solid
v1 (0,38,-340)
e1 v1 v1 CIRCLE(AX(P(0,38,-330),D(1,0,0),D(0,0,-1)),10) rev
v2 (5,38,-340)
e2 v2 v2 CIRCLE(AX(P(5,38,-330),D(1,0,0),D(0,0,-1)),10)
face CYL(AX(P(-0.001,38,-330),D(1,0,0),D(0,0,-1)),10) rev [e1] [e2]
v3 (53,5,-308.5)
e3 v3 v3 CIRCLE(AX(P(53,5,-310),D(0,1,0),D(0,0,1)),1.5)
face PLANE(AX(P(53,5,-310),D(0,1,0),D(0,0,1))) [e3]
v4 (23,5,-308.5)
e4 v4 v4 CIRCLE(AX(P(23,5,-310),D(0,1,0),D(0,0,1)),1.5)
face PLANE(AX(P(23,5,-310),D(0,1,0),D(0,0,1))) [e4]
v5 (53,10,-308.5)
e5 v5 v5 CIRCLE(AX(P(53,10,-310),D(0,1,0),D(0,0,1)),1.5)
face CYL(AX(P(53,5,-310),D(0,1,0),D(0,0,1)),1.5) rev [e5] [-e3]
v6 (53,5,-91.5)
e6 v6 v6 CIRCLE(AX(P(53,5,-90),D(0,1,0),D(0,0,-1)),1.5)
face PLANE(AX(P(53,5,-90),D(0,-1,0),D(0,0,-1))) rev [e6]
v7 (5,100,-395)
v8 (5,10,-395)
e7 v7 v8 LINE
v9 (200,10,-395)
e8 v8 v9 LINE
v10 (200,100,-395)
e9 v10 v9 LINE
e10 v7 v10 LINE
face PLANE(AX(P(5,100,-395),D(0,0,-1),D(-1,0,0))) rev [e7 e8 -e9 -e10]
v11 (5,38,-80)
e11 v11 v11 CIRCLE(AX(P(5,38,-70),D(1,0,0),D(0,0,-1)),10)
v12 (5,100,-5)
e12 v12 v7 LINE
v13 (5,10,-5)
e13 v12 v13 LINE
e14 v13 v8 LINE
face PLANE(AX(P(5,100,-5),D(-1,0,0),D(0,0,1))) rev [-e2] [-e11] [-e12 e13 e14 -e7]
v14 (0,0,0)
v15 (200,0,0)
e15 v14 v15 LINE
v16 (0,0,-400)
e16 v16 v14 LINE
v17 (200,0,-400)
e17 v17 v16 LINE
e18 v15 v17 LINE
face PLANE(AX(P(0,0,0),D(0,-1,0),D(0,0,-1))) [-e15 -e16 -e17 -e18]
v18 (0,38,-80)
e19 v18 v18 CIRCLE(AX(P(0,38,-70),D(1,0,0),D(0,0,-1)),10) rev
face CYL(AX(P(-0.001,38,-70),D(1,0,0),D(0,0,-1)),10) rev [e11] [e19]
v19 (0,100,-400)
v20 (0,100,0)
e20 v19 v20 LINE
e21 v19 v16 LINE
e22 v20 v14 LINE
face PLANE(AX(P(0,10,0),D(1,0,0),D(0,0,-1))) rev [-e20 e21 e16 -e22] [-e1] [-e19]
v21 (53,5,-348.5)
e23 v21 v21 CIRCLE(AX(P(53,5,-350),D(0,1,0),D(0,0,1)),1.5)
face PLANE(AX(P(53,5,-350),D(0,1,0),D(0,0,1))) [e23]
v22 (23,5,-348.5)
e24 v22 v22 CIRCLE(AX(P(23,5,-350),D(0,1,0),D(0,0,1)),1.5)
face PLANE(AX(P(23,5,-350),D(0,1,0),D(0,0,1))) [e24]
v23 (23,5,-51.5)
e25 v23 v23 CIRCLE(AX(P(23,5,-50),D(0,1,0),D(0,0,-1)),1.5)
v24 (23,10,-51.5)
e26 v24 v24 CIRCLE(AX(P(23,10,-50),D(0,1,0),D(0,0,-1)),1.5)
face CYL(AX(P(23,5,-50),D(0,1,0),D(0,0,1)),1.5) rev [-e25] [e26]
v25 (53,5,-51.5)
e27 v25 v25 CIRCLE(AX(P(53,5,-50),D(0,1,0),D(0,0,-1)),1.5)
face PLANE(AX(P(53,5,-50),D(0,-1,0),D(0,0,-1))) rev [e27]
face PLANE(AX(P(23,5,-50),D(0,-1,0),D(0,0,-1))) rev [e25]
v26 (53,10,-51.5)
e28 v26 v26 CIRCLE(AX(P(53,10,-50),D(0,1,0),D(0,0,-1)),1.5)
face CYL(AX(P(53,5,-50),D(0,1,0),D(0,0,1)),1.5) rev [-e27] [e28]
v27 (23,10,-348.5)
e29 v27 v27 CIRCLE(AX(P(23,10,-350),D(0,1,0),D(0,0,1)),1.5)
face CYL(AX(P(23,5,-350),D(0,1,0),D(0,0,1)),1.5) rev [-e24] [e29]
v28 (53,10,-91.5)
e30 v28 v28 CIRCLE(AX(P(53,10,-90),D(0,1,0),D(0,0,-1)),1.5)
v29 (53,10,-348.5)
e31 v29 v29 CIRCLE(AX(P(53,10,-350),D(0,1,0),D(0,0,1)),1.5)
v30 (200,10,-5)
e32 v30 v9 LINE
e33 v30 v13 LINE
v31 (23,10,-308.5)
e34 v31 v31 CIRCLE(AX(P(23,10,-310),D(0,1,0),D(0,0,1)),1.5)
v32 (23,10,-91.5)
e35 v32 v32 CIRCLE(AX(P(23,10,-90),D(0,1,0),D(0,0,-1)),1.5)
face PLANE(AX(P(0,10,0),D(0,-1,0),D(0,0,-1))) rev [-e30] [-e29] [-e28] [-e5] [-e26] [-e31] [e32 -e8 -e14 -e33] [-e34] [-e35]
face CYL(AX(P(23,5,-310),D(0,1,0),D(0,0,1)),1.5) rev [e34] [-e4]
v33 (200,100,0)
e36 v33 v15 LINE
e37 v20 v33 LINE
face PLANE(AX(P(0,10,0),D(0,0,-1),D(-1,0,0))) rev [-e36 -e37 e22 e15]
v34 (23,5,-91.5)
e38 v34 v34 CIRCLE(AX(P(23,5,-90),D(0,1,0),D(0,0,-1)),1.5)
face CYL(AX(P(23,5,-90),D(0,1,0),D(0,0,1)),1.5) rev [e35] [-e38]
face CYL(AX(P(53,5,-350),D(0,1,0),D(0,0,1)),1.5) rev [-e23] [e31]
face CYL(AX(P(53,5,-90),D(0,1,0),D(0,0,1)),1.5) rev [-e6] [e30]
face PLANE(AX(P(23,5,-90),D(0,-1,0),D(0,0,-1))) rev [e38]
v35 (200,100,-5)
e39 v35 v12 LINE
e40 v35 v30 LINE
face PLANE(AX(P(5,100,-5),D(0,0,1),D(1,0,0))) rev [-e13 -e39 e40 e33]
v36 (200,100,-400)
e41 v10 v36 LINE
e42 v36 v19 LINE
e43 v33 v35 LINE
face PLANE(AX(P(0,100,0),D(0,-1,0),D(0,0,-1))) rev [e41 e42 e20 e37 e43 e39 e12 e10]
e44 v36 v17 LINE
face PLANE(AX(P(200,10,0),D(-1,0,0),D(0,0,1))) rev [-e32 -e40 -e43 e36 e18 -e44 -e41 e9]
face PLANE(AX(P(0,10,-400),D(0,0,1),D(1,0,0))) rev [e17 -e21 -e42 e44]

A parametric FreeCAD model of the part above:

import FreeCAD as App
import Part
import Sketcher

doc = App.newDocument("Part")
body = doc.addObject("PartDesign::Body", "Body")

# Sketch on XZ plane
sketch1 = doc.addObject("Sketcher::SketchObject", "Sketch")
body.addObject(sketch1)
sketch1.AttachmentSupport = (doc.XZ_Plane, [""])
sketch1.MapMode = "FlatFace"
sketch1.addGeometry(Part.LineSegment(App.Vector(0, -400, 0), App.Vector(0, 0, 0)), False)
sketch1.addGeometry(Part.LineSegment(App.Vector(0, 0, 0), App.Vector(200, 0, 0)), False)
sketch1.addGeometry(Part.LineSegment(App.Vector(200, 0, 0), App.Vector(200, -400, 0)), False)
sketch1.addGeometry(Part.LineSegment(App.Vector(200, -400, 0), App.Vector(0, -400, 0)), False)
sketch1.addConstraint(Sketcher.Constraint("Coincident", 0, 2, 1, 1))
sketch1.addConstraint(Sketcher.Constraint("Coincident", 1, 2, 2, 1))
sketch1.addConstraint(Sketcher.Constraint("Coincident", 2, 2, 3, 1))
sketch1.addConstraint(Sketcher.Constraint("Coincident", 3, 2, 0, 1))
sketch1.addConstraint(Sketcher.Constraint("Vertical", 0))
sketch1.addConstraint(Sketcher.Constraint("Horizontal", 1))
sketch1.addConstraint(Sketcher.Constraint("Vertical", 2))
sketch1.addConstraint(Sketcher.Constraint("Horizontal", 3))
sketch1.addConstraint(Sketcher.Constraint("Coincident", 0, 2, -1, 1))
sketch1.addConstraint(Sketcher.Constraint("DistanceX", 1, 1, 1, 2, 200.0))
sketch1.addConstraint(Sketcher.Constraint("DistanceY", 0, 1, 0, 2, 400.0))
pad1 = doc.addObject("PartDesign::Pad", "Pad")
body.addObject(pad1)
pad1.Profile = sketch1
pad1.Length = 10
pad1.Reversed = True

# Sketch on XZ plane
sketch2 = doc.addObject("Sketcher::SketchObject", "Sketch001")
body.addObject(sketch2)
sketch2.AttachmentSupport = (doc.XZ_Plane, [""])
sketch2.MapMode = "FlatFace"
sketch2.AttachmentOffset = App.Placement(App.Vector(0, 0, -10), App.Rotation())
sketch2.addGeometry(Part.LineSegment(App.Vector(5, -5, 0), App.Vector(5, -395, 0)), False)
sketch2.addGeometry(Part.LineSegment(App.Vector(5, -395, 0), App.Vector(200, -395, 0)), False)
sketch2.addGeometry(Part.LineSegment(App.Vector(200, -395, 0), App.Vector(200, -400, 0)), False)
sketch2.addGeometry(Part.LineSegment(App.Vector(200, -400, 0), App.Vector(0, -400, 0)), False)
sketch2.addGeometry(Part.LineSegment(App.Vector(0, -400, 0), App.Vector(0, 0, 0)), False)
sketch2.addGeometry(Part.LineSegment(App.Vector(0, 0, 0), App.Vector(200, 0, 0)), False)
sketch2.addGeometry(Part.LineSegment(App.Vector(200, 0, 0), App.Vector(200, -5, 0)), False)
sketch2.addGeometry(Part.LineSegment(App.Vector(200, -5, 0), App.Vector(5, -5, 0)), False)
sketch2.addConstraint(Sketcher.Constraint("Coincident", 0, 2, 1, 1))
sketch2.addConstraint(Sketcher.Constraint("Coincident", 1, 2, 2, 1))
sketch2.addConstraint(Sketcher.Constraint("Coincident", 2, 2, 3, 1))
sketch2.addConstraint(Sketcher.Constraint("Coincident", 3, 2, 4, 1))
sketch2.addConstraint(Sketcher.Constraint("Coincident", 4, 2, 5, 1))
sketch2.addConstraint(Sketcher.Constraint("Coincident", 5, 2, 6, 1))
sketch2.addConstraint(Sketcher.Constraint("Coincident", 6, 2, 7, 1))
sketch2.addConstraint(Sketcher.Constraint("Coincident", 7, 2, 0, 1))
sketch2.addConstraint(Sketcher.Constraint("Vertical", 0))
sketch2.addConstraint(Sketcher.Constraint("Horizontal", 1))
sketch2.addConstraint(Sketcher.Constraint("Vertical", 2))
sketch2.addConstraint(Sketcher.Constraint("Horizontal", 3))
sketch2.addConstraint(Sketcher.Constraint("Vertical", 4))
sketch2.addConstraint(Sketcher.Constraint("Horizontal", 5))
sketch2.addConstraint(Sketcher.Constraint("Vertical", 6))
sketch2.addConstraint(Sketcher.Constraint("Horizontal", 7))
sketch2.addConstraint(Sketcher.Constraint("Coincident", 4, 2, -1, 1))
sketch2.addConstraint(Sketcher.Constraint("Vertical", 2, 2, 5, 2))
sketch2.addConstraint(Sketcher.Constraint("Equal", 2, 6))
sketch2.addConstraint(Sketcher.Constraint("DistanceX", 1, 1, 1, 2, 195.0))
sketch2.addConstraint(Sketcher.Constraint("DistanceX", 3, 2, 3, 1, 200.0))
sketch2.addConstraint(Sketcher.Constraint("DistanceY", 0, 2, 0, 1, 390.0))
sketch2.addConstraint(Sketcher.Constraint("DistanceY", 2, 2, 2, 1, 5.0))
pad2 = doc.addObject("PartDesign::Pad", "Pad001")
body.addObject(pad2)
pad2.Profile = sketch2
pad2.Length = 90
pad2.Reversed = True

# Sketch on YZ plane
sketch3 = doc.addObject("Sketcher::SketchObject", "Sketch002")
body.addObject(sketch3)
sketch3.AttachmentSupport = (doc.YZ_Plane, [""])
sketch3.MapMode = "FlatFace"
sketch3.AttachmentOffset = App.Placement(App.Vector(0, 0, 5), App.Rotation())
sketch3.addGeometry(Part.Circle(App.Vector(38, -70, 0), App.Vector(0, 0, 1), 10), False)
sketch3.addConstraint(Sketcher.Constraint("Diameter", 0, 20.0))
sketch3.addConstraint(Sketcher.Constraint("DistanceX", -1, 1, 0, 3, 38.0))
sketch3.addConstraint(Sketcher.Constraint("DistanceY", 0, 3, -1, 1, 70.0))
pocket1 = doc.addObject("PartDesign::Pocket", "Pocket")
body.addObject(pocket1)
pocket1.Profile = sketch3
pocket1.Type = "UpToFirst"

# Sketch on YZ plane
sketch4 = doc.addObject("Sketcher::SketchObject", "Sketch003")
body.addObject(sketch4)
sketch4.AttachmentSupport = (doc.YZ_Plane, [""])
sketch4.MapMode = "FlatFace"
sketch4.AttachmentOffset = App.Placement(App.Vector(0, 0, 5), App.Rotation())
sketch4.addGeometry(Part.Circle(App.Vector(38, -330, 0), App.Vector(0, 0, 1), 10), False)
sketch4.addConstraint(Sketcher.Constraint("Diameter", 0, 20.0))
sketch4.addConstraint(Sketcher.Constraint("DistanceX", -1, 1, 0, 3, 38.0))
sketch4.addConstraint(Sketcher.Constraint("DistanceY", 0, 3, -1, 1, 330.0))
pocket2 = doc.addObject("PartDesign::Pocket", "Pocket001")
body.addObject(pocket2)
pocket2.Profile = sketch4
pocket2.Type = "UpToFirst"

# Sketch on XZ plane
sketch5 = doc.addObject("Sketcher::SketchObject", "Sketch004")
body.addObject(sketch5)
sketch5.AttachmentSupport = (doc.XZ_Plane, [""])
sketch5.MapMode = "FlatFace"
sketch5.AttachmentOffset = App.Placement(App.Vector(0, 0, -10), App.Rotation())
sketch5.addGeometry(Part.Circle(App.Vector(23, -350, 0), App.Vector(0, 0, 1), 1.5), False)
sketch5.addGeometry(Part.Circle(App.Vector(53, -350, 0), App.Vector(0, 0, 1), 1.5), False)
sketch5.addGeometry(Part.Circle(App.Vector(53, -310, 0), App.Vector(0, 0, 1), 1.5), False)
sketch5.addGeometry(Part.Circle(App.Vector(23, -310, 0), App.Vector(0, 0, 1), 1.5), False)
sketch5.addGeometry(Part.Circle(App.Vector(23, -90, 0), App.Vector(0, 0, 1), 1.5), False)
sketch5.addGeometry(Part.Circle(App.Vector(53, -90, 0), App.Vector(0, 0, 1), 1.5), False)
sketch5.addGeometry(Part.Circle(App.Vector(53, -50, 0), App.Vector(0, 0, 1), 1.5), False)
sketch5.addGeometry(Part.Circle(App.Vector(23, -50, 0), App.Vector(0, 0, 1), 1.5), False)
sketch5.addConstraint(Sketcher.Constraint("Equal", 0, 1))
sketch5.addConstraint(Sketcher.Constraint("Equal", 1, 2))
sketch5.addConstraint(Sketcher.Constraint("Equal", 2, 3))
sketch5.addConstraint(Sketcher.Constraint("Equal", 3, 4))
sketch5.addConstraint(Sketcher.Constraint("Equal", 4, 5))
sketch5.addConstraint(Sketcher.Constraint("Equal", 5, 6))
sketch5.addConstraint(Sketcher.Constraint("Equal", 6, 7))
sketch5.addConstraint(Sketcher.Constraint("Horizontal", 0, 3, 1, 3))
sketch5.addConstraint(Sketcher.Constraint("Horizontal", 2, 3, 3, 3))
sketch5.addConstraint(Sketcher.Constraint("Horizontal", 4, 3, 5, 3))
sketch5.addConstraint(Sketcher.Constraint("Horizontal", 6, 3, 7, 3))
sketch5.addConstraint(Sketcher.Constraint("Vertical", 1, 3, 2, 3))
sketch5.addConstraint(Sketcher.Constraint("Vertical", 0, 3, 3, 3))
sketch5.addConstraint(Sketcher.Constraint("Vertical", 3, 3, 4, 3))
sketch5.addConstraint(Sketcher.Constraint("Vertical", 2, 3, 5, 3))
sketch5.addConstraint(Sketcher.Constraint("Vertical", 5, 3, 6, 3))
sketch5.addConstraint(Sketcher.Constraint("Vertical", 4, 3, 7, 3))
sketch5.addConstraint(Sketcher.Constraint("Diameter", 0, 3.0))
sketch5.addConstraint(Sketcher.Constraint("DistanceX", -1, 1, 0, 3, 23.0))
sketch5.addConstraint(Sketcher.Constraint("DistanceY", 0, 3, -1, 1, 350.0))
sketch5.addConstraint(Sketcher.Constraint("DistanceX", -1, 1, 1, 3, 53.0))
sketch5.addConstraint(Sketcher.Constraint("DistanceY", 2, 3, -1, 1, 310.0))
sketch5.addConstraint(Sketcher.Constraint("DistanceY", 4, 3, -1, 1, 90.0))
sketch5.addConstraint(Sketcher.Constraint("DistanceY", 6, 3, -1, 1, 50.0))
pocket3 = doc.addObject("PartDesign::Pocket", "Pocket002")
body.addObject(pocket3)
pocket3.Profile = sketch5
pocket3.Length = 5
pocket3.Reversed = True

doc.recompute()
